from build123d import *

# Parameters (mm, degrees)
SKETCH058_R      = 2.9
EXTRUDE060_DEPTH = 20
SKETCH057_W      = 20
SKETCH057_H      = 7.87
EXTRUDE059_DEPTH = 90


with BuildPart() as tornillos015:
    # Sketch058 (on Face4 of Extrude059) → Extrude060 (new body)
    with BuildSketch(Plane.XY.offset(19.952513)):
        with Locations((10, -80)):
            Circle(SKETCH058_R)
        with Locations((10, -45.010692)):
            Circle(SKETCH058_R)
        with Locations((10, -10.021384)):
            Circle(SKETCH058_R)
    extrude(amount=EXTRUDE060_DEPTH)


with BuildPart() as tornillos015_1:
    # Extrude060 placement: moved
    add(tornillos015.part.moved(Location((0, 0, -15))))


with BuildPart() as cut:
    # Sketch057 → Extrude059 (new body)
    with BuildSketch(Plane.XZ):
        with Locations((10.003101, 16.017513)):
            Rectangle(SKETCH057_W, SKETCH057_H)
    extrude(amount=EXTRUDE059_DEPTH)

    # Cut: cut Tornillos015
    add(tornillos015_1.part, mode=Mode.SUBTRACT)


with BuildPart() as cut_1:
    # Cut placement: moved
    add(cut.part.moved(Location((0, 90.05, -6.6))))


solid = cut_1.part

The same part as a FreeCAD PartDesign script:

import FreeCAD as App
import Part
import Sketcher
Q = App.Units.Quantity

doc = App.newDocument("Part")
params = doc.addObject("Spreadsheet::Sheet", "Params")
for row, (alias, value) in enumerate([
    ("sketch1_diameter", "5.8 mm"),
    ("pad1_length", "20 mm"),
    ("sketch2_width", "20 mm"),
    ("sketch2_height", "7.87 mm"),
    ("pad2_length", "90 mm"),
], start=1):
    params.set(f"A{row}", alias)
    params.set(f"B{row}", "=" + value)
    params.setAlias(f"B{row}", alias)

body = doc.addObject("PartDesign::Body", "Body")
body.AllowCompound = True

sketch1 = body.newObject("Sketcher::SketchObject", "Sketch")
sketch1.AttachmentSupport = (doc.getObject("XY_Plane"), [""])
sketch1.MapMode = "FlatFace"
sketch1.AttachmentOffset = App.Placement(App.Vector(0, 0, 19.952513), App.Rotation())
sketch1.addGeometry([
    Part.Circle(App.Vector(10, -80, 0), App.Vector(0, 0, 1), 2.9),
    Part.Circle(App.Vector(10, -45, 0), App.Vector(0, 0, 1), 2.9),
    Part.Circle(App.Vector(10, -10, 0), App.Vector(0, 0, 1), 2.9),
], False)
sketch1.addConstraint([
    Sketcher.Constraint("Equal", 0, 1),
    Sketcher.Constraint("Equal", 1, 2),
    Sketcher.Constraint("Vertical", 0, 3, 1, 3),
    Sketcher.Constraint("Vertical", 1, 3, 2, 3),
    Sketcher.Constraint("Diameter", 0, Q("5.8 mm")),
    Sketcher.Constraint("DistanceX", -1, 1, 0, 3, Q("10 mm")),
    Sketcher.Constraint("DistanceY", 0, 3, -1, 1, Q("80 mm")),
    Sketcher.Constraint("DistanceY", 1, 3, -1, 1, Q("45.010692 mm")),
    Sketcher.Constraint("DistanceY", 2, 3, -1, 1, Q("10.021384 mm")),
])
sketch1.setExpression("Constraints[4]", "Params.sketch1_diameter")
pad1 = body.newObject("PartDesign::Pad", "Pad")
pad1.Profile = sketch1
pad1.setExpression("Length", "Params.pad1_length")
body2 = doc.addObject("PartDesign::Body", "Body001")
body2.AllowCompound = True
doc.recompute()

body.Placement = App.Placement(App.Vector(0, 0, -15), App.Rotation(App.Vector(0, 0, 1), 0))
boolean = body2.newObject("PartDesign::Boolean", "Boolean")
boolean.Type = "Fuse"
boolean.addObjects([body])
body3 = doc.addObject("PartDesign::Body", "Body002")

sketch2 = body3.newObject("Sketcher::SketchObject", "Sketch001")
sketch2.AttachmentSupport = (doc.getObject("XZ_Plane002"), [""])
sketch2.MapMode = "FlatFace"
sketch2.addGeometry([
    Part.LineSegment(App.Vector(0, 20, 0), App.Vector(0, 12, 0)),
    Part.LineSegment(App.Vector(0, 12, 0), App.Vector(20, 12, 0)),
    Part.LineSegment(App.Vector(20, 12, 0), App.Vector(20, 20, 0)),
    Part.LineSegment(App.Vector(20, 20, 0), App.Vector(0, 20, 0)),
], False)
sketch2.addConstraint([
    Sketcher.Constraint("Coincident", 0, 2, 1, 1),
    Sketcher.Constraint("Coincident", 1, 2, 2, 1),
    Sketcher.Constraint("Coincident", 2, 2, 3, 1),
    Sketcher.Constraint("Coincident", 3, 2, 0, 1),
    Sketcher.Constraint("Vertical", 0),
    Sketcher.Constraint("Horizontal", 1),
    Sketcher.Constraint("Vertical", 2),
    Sketcher.Constraint("Horizontal", 3),
    Sketcher.Constraint("DistanceX", 1, 1, 1, 2, Q("20 mm")),
    Sketcher.Constraint("DistanceY", 0, 2, 0, 1, Q("7.87 mm")),
    Sketcher.Constraint("DistanceX", -1, 1, 0, 2, Q("0.003101 mm")),
    Sketcher.Constraint("DistanceY", -1, 1, 0, 2, Q("12.082513 mm")),
])
sketch2.setExpression("Constraints[8]", "Params.sketch2_width")
sketch2.setExpression("Constraints[9]", "Params.sketch2_height")
pad2 = body3.newObject("PartDesign::Pad", "Pad001")
pad2.Profile = sketch2
pad2.setExpression("Length", "Params.pad2_length")
doc.recompute()

boolean2 = body3.newObject("PartDesign::Boolean", "Boolean001")
boolean2.Type = "Cut"
boolean2.addObjects([body2])
body4 = doc.addObject("PartDesign::Body", "Body003")
doc.recompute()

body3.Placement = App.Placement(App.Vector(0, 90.05, -6.6), App.Rotation(App.Vector(0, 0, 1), 0))
boolean3 = body4.newObject("PartDesign::Boolean", "Boolean002")
boolean3.Type = "Fuse"
boolean3.addObjects([body3])

doc.recompute()
